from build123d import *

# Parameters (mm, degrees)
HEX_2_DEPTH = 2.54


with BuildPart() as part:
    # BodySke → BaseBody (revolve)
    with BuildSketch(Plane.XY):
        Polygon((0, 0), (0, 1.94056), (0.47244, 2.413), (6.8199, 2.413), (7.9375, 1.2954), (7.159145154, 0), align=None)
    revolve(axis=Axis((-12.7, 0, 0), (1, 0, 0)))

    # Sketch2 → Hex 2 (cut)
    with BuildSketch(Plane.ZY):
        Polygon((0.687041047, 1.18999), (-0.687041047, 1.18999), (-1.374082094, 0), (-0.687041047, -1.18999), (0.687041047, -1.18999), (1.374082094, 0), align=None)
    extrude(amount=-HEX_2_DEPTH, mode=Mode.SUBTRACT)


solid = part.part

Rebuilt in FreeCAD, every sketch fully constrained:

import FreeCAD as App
import Part
import Sketcher

V = App.Vector
Q = App.Units.Quantity

doc = App.newDocument("Part")
body = doc.addObject("PartDesign::Body", "Body")

# Sketch on XY plane
sketch1 = doc.addObject("Sketcher::SketchObject", "Sketch")
body.addObject(sketch1)
sketch1.AttachmentSupport = (doc.XY_Plane, [""])
sketch1.MapMode = "FlatFace"
sketch1.addGeometry([
    Part.LineSegment(V(0, 1.9, 0), V(0, 0, 0)),  # 0
    Part.LineSegment(V(0, 0, 0), V(7.2, 0, 0)),  # 1
    Part.LineSegment(V(7.2, 0, 0), V(7.9, 1.3, 0)),  # 2
    Part.LineSegment(V(7.9, 1.3, 0), V(6.8, 2.4, 0)),  # 3
    Part.LineSegment(V(6.8, 2.4, 0), V(0.5, 2.4, 0)),  # 4
    Part.LineSegment(V(0.5, 2.4, 0), V(0, 1.9, 0)),  # 5
], False)
sketch1.addConstraint([
    Sketcher.Constraint("Coincident", 0, 2, 1, 1),
    Sketcher.Constraint("Coincident", 1, 2, 2, 1),
    Sketcher.Constraint("Coincident", 2, 2, 3, 1),
    Sketcher.Constraint("Coincident", 3, 2, 4, 1),
    Sketcher.Constraint("Coincident", 4, 2, 5, 1),
    Sketcher.Constraint("Coincident", 5, 2, 0, 1),
    Sketcher.Constraint("Vertical", 0),
    Sketcher.Constraint("Horizontal", 1),
    Sketcher.Constraint("Horizontal", 4),
    Sketcher.Constraint("Coincident", 0, 2, -1, 1),
    Sketcher.Constraint("Perpendicular", 3, 5),
    Sketcher.Constraint("Angle", 2, Q("59 deg")),
    Sketcher.Constraint("Angle", 3, Q("135 deg")),
    Sketcher.Constraint("DistanceX", 4, 2, 4, 1, Q("0.2499 in")),
    Sketcher.Constraint("DistanceY", 0, 2, 0, 1, Q("0.0764 in")),
    Sketcher.Constraint("DistanceX", -1, 1, 2, 2, Q("0.3125 in")),
    Sketcher.Constraint("DistanceY", -1, 1, 2, 2, Q("0.051 in")),
])
revolution = doc.addObject("PartDesign::Revolution", "Revolution")
body.addObject(revolution)
revolution.Profile = sketch1
revolution.ReferenceAxis = (sketch1, ["H_Axis"])
revolution.Angle = 360

# Sketch on YZ plane
sketch2 = doc.addObject("Sketcher::SketchObject", "Sketch001")
body.addObject(sketch2)
sketch2.AttachmentSupport = (doc.YZ_Plane, [""])
sketch2.MapMode = "FlatFace"
sketch2.addGeometry([
    Part.LineSegment(V(1.2, 0.7, 0), V(1.2, -0.7, 0)),  # 0
    Part.LineSegment(V(1.2, -0.7, 0), V(0, -1.4, 0)),  # 1
    Part.LineSegment(V(0, -1.4, 0), V(-1.2, -0.7, 0)),  # 2
    Part.LineSegment(V(-1.2, -0.7, 0), V(-1.2, 0.7, 0)),  # 3
    Part.LineSegment(V(-1.2, 0.7, 0), V(0, 1.4, 0)),  # 4
    Part.LineSegment(V(0, 1.4, 0), V(1.2, 0.7, 0)),  # 5
], False)
sketch2.addConstraint([
    Sketcher.Constraint("Coincident", 0, 2, 1, 1),
    Sketcher.Constraint("Coincident", 1, 2, 2, 1),
    Sketcher.Constraint("Coincident", 2, 2, 3, 1),
    Sketcher.Constraint("Coincident", 3, 2, 4, 1),
    Sketcher.Constraint("Coincident", 4, 2, 5, 1),
    Sketcher.Constraint("Coincident", 5, 2, 0, 1),
    Sketcher.Constraint("Vertical", 0),
    Sketcher.Constraint("Vertical", 3),
    Sketcher.Constraint("Symmetric", 0, 2, 3, 2, -1, 1),
    Sketcher.Constraint("Symmetric", 1, 2, 4, 2, -1, 1),
    Sketcher.Constraint("PointOnObject", 1, 2, -2),
    Sketcher.Constraint("Parallel", 2, 5),
    Sketcher.Constraint("Horizontal", 0, 2, 2, 2),
    Sketcher.Constraint("Angle", 1, Q("-150 deg")),
    Sketcher.Constraint("DistanceX", 2, 2, 0, 2, Q("0.0937 in")),
    Sketcher.Constraint("DistanceY", 0, 2, 0, 1, Q("1.374082 mm")),
])
pocket1 = doc.addObject("PartDesign::Pocket", "Pocket")
body.addObject(pocket1)
pocket1.Profile = sketch2
pocket1.Length = Q("0.1 in")
pocket1.Reversed = True

doc.recompute()
